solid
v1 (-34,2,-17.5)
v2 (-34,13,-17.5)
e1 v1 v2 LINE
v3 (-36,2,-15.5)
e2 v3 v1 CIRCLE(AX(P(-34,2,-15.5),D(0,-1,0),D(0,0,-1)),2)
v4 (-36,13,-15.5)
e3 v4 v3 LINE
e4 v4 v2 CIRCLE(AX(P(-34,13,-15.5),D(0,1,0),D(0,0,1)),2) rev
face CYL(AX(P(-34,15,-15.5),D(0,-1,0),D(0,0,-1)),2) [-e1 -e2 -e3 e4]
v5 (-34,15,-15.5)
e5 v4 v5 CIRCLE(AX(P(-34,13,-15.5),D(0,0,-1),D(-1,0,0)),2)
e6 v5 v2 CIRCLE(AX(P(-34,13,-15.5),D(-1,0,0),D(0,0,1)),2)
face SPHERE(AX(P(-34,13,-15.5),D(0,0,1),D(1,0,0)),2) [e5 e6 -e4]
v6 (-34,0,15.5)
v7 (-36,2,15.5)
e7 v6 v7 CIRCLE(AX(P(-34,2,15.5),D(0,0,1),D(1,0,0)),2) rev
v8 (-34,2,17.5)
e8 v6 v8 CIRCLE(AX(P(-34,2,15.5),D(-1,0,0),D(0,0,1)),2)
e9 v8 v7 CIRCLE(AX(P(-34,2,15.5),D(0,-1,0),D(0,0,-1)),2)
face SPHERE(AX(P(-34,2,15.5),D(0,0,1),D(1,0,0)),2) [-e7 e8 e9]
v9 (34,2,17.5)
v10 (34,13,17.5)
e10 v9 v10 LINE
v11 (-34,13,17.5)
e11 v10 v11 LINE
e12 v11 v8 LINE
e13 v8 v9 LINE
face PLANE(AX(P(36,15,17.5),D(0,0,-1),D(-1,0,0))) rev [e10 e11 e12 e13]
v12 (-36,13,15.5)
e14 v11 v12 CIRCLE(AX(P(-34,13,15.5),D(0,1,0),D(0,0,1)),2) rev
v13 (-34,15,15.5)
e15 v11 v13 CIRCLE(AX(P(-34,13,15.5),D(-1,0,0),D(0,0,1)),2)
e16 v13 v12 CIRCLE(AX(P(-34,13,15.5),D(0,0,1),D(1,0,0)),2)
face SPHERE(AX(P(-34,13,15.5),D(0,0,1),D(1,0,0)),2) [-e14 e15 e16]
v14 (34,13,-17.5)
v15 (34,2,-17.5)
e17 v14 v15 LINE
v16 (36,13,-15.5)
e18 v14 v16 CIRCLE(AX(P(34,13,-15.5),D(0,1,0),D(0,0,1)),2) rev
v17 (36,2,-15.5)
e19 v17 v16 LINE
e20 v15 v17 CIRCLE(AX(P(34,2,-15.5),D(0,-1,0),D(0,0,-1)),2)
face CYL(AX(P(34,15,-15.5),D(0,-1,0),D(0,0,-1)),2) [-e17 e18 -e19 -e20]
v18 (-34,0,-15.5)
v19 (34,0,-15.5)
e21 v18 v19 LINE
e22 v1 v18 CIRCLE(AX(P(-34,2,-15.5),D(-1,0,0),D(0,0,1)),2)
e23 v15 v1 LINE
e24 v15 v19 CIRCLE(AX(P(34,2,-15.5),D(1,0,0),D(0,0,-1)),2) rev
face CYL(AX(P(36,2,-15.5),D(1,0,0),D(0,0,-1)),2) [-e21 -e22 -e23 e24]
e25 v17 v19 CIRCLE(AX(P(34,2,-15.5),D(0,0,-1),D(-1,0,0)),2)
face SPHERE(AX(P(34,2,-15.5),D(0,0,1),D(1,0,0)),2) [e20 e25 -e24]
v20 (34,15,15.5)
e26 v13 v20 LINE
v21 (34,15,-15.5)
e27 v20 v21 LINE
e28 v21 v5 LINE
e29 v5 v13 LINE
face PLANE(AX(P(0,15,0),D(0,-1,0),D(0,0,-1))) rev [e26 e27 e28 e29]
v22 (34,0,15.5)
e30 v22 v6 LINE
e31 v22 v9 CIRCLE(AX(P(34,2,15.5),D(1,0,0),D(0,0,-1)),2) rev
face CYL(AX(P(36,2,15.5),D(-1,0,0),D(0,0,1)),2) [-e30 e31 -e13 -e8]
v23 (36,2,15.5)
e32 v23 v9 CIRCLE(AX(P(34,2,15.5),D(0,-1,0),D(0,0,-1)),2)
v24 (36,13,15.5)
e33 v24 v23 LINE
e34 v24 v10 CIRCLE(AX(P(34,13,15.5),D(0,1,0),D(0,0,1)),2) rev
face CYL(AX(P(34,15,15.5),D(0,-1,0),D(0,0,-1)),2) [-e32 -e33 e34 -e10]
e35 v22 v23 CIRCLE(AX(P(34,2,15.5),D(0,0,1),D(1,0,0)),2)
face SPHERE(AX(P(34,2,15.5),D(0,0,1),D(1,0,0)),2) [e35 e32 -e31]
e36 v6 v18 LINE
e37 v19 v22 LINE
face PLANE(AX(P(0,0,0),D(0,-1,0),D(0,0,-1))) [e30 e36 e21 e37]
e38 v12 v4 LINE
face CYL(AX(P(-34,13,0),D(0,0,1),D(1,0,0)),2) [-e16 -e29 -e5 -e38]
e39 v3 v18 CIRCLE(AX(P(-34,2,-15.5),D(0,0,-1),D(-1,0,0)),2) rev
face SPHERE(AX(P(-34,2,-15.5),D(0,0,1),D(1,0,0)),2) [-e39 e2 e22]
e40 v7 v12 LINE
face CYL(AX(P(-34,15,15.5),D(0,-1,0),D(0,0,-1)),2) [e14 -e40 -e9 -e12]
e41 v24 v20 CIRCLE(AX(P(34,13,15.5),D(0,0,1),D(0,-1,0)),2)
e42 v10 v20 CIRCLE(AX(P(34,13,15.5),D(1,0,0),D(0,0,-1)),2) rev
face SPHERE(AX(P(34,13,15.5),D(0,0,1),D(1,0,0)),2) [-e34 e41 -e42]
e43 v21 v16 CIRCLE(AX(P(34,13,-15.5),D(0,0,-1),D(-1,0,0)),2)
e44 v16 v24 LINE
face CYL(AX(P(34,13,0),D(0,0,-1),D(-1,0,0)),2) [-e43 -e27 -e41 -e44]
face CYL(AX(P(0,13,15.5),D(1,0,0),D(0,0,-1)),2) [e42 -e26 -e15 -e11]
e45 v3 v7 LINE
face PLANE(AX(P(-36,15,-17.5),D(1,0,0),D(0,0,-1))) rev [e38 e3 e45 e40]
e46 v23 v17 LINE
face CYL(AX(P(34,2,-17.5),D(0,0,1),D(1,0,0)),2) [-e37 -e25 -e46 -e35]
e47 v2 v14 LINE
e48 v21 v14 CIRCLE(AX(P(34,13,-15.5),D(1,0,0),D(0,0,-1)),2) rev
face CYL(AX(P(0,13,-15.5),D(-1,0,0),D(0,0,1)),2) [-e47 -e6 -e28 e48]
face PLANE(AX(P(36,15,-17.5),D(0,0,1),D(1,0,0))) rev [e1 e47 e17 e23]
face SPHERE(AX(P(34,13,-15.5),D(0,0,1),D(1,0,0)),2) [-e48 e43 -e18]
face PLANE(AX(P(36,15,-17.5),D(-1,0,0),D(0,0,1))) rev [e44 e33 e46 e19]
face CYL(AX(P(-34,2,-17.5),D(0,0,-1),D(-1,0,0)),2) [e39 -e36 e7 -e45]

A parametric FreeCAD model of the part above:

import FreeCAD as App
import Part
import Sketcher

V = App.Vector

doc = App.newDocument("Part")
body = doc.addObject("PartDesign::Body", "Body")

sketch1 = body.newObject("Sketcher::SketchObject", "Sketch")
sketch1.AttachmentSupport = (doc.getObject("XZ_Plane"), [""])
sketch1.MapMode = "FlatFace"
sketch1.addGeometry([
    Part.LineSegment(V(-36, -17.5, 0), V(-36, 17.5, 0)),
    Part.LineSegment(V(-36, 17.5, 0), V(36, 17.5, 0)),
    Part.LineSegment(V(36, 17.5, 0), V(36, -17.5, 0)),
    Part.LineSegment(V(36, -17.5, 0), V(-36, -17.5, 0)),
], False)
sketch1.addConstraint([
    Sketcher.Constraint("Coincident", 0, 2, 1, 1),
    Sketcher.Constraint("Coincident", 1, 2, 2, 1),
    Sketcher.Constraint("Coincident", 2, 2, 3, 1),
    Sketcher.Constraint("Coincident", 3, 2, 0, 1),
    Sketcher.Constraint("Vertical", 0),
    Sketcher.Constraint("Horizontal", 1),
    Sketcher.Constraint("Vertical", 2),
    Sketcher.Constraint("Horizontal", 3),
    Sketcher.Constraint("Symmetric", 0, 2, 2, 2, -1, 1),
    Sketcher.Constraint("DistanceX", 1, 1, 1, 2, 72.0),
    Sketcher.Constraint("DistanceY", 0, 1, 0, 2, 35.0),
])
pad1 = body.newObject("PartDesign::Pad", "Pad")
pad1.Profile = sketch1
pad1.Length = 15
pad1.Reversed = True
doc.recompute()

fillet = body.newObject("PartDesign::Fillet", "Fillet")
fillet.Base = (pad1, ["Edge1"])
fillet.UseAllEdges = True
fillet.Radius = 2

doc.recompute()
